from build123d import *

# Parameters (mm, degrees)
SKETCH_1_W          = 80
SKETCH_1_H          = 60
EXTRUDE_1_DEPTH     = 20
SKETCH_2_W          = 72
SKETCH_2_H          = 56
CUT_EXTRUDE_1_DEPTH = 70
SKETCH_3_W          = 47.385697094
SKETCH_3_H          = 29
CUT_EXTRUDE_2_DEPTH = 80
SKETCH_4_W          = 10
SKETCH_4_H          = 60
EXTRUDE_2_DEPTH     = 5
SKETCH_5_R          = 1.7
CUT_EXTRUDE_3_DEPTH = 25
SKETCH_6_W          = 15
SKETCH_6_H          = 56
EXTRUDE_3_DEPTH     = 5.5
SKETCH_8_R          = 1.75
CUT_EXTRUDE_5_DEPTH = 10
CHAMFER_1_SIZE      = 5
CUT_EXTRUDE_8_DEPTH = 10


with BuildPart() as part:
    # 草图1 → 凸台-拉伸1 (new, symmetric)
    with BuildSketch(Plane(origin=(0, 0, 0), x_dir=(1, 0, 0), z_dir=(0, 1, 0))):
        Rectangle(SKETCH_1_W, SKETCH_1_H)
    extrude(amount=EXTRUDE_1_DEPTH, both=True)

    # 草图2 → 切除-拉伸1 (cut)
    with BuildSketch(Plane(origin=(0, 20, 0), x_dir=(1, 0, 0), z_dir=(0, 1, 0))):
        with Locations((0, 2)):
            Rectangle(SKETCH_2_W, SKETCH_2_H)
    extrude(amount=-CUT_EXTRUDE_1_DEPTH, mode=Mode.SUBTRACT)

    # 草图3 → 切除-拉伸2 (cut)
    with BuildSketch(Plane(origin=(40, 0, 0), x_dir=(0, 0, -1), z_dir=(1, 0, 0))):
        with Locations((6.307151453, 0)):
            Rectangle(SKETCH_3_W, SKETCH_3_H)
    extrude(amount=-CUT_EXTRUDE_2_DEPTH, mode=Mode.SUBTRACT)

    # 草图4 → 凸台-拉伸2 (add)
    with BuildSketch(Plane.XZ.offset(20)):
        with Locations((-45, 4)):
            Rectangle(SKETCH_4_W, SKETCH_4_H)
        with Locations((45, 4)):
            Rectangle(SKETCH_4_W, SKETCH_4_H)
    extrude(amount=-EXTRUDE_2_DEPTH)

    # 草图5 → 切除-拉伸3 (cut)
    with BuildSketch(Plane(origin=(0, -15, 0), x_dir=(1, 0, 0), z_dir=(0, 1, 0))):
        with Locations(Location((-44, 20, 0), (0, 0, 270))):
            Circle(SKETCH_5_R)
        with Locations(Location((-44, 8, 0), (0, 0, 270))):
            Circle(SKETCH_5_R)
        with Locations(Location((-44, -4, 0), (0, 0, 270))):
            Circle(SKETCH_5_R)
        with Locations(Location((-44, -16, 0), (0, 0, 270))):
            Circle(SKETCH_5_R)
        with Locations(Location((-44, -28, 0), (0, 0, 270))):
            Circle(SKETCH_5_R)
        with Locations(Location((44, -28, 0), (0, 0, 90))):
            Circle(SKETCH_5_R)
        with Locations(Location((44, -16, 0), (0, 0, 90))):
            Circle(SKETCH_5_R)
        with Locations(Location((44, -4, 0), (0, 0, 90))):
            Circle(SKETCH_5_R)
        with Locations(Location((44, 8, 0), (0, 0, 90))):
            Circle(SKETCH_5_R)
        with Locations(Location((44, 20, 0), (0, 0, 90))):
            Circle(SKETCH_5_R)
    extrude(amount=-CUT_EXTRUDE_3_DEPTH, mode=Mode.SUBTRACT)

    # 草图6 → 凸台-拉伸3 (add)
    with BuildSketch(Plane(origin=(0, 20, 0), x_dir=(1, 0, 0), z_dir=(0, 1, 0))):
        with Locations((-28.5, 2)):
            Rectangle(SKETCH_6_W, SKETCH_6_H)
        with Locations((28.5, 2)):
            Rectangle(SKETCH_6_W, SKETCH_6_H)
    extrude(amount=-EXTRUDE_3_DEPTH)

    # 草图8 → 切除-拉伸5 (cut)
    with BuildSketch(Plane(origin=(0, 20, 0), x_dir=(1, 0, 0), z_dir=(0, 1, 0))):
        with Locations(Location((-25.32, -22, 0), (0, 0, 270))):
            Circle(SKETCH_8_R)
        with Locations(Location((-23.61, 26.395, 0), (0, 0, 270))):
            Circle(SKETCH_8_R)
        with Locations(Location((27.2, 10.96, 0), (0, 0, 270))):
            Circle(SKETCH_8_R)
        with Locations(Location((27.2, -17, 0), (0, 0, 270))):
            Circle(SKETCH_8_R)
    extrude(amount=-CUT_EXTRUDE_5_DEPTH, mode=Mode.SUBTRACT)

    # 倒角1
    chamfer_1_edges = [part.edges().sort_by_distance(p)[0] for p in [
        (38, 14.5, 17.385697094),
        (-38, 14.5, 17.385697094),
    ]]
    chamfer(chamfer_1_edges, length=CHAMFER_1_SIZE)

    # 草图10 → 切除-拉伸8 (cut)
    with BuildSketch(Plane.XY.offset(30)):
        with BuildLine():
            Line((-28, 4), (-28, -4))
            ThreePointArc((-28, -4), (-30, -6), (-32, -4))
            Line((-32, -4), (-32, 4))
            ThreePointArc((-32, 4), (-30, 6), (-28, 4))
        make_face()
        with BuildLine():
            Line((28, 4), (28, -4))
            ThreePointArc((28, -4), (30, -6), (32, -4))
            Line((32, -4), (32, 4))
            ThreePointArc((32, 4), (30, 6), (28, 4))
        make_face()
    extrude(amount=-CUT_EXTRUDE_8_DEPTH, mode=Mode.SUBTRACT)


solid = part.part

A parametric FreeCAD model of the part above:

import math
import FreeCAD as App
import Part
import Sketcher
Q = App.Units.Quantity


def edges_at(feature, points):
    """Names of the edges that pass closest to the given points."""
    edges = feature.Shape.Edges
    near = lambda p: min(range(len(edges)), key=lambda i: edges[i].distToShape(Part.Vertex(*p))[0])
    return sorted({f"Edge{near(p) + 1}" for p in points})

doc = App.newDocument("Part")
body = doc.addObject("PartDesign::Body", "Body")

sketch1 = doc.addObject("Sketcher::SketchObject", "Sketch")
body.addObject(sketch1)
sketch1.AttachmentSupport = (doc.XZ_Plane, [""])
sketch1.MapMode = "FlatFace"
sketch1.addGeometry(Part.LineSegment(App.Vector(-40, -30, 0), App.Vector(-40, 30, 0)), False)
sketch1.addGeometry(Part.LineSegment(App.Vector(-40, 30, 0), App.Vector(40, 30, 0)), False)
sketch1.addGeometry(Part.LineSegment(App.Vector(40, 30, 0), App.Vector(40, -30, 0)), False)
sketch1.addGeometry(Part.LineSegment(App.Vector(40, -30, 0), App.Vector(-40, -30, 0)), False)
sketch1.addConstraint(Sketcher.Constraint("Coincident", 0, 2, 1, 1))
sketch1.addConstraint(Sketcher.Constraint("Coincident", 1, 2, 2, 1))
sketch1.addConstraint(Sketcher.Constraint("Coincident", 2, 2, 3, 1))
sketch1.addConstraint(Sketcher.Constraint("Coincident", 3, 2, 0, 1))
sketch1.addConstraint(Sketcher.Constraint("Vertical", 0))
sketch1.addConstraint(Sketcher.Constraint("Horizontal", 1))
sketch1.addConstraint(Sketcher.Constraint("Vertical", 2))
sketch1.addConstraint(Sketcher.Constraint("Horizontal", 3))
sketch1.addConstraint(Sketcher.Constraint("Symmetric", 0, 2, 2, 2, -1, 1))
sketch1.addConstraint(Sketcher.Constraint("DistanceX", 1, 1, 1, 2, Q("80 mm")))
sketch1.addConstraint(Sketcher.Constraint("DistanceY", 0, 1, 0, 2, Q("60 mm")))
pad1 = doc.addObject("PartDesign::Pad", "Pad")
body.addObject(pad1)
pad1.Profile = sketch1
pad1.Length = 40
pad1.Midplane = True

sketch2 = doc.addObject("Sketcher::SketchObject", "Sketch001")
body.addObject(sketch2)
sketch2.AttachmentSupport = (doc.XZ_Plane, [""])
sketch2.MapMode = "FlatFace"
sketch2.AttachmentOffset = App.Placement(App.Vector(0, 0, -20), App.Rotation())
sketch2.addGeometry(Part.LineSegment(App.Vector(-36, -30, 0), App.Vector(-36, 26, 0)), False)
sketch2.addGeometry(Part.LineSegment(App.Vector(-36, 26, 0), App.Vector(36, 26, 0)), False)
sketch2.addGeometry(Part.LineSegment(App.Vector(36, 26, 0), App.Vector(36, -30, 0)), False)
sketch2.addGeometry(Part.LineSegment(App.Vector(36, -30, 0), App.Vector(-36, -30, 0)), False)
sketch2.addConstraint(Sketcher.Constraint("Coincident", 0, 2, 1, 1))
sketch2.addConstraint(Sketcher.Constraint("Coincident", 1, 2, 2, 1))
sketch2.addConstraint(Sketcher.Constraint("Coincident", 2, 2, 3, 1))
sketch2.addConstraint(Sketcher.Constraint("Coincident", 3, 2, 0, 1))
sketch2.addConstraint(Sketcher.Constraint("Vertical", 0))
sketch2.addConstraint(Sketcher.Constraint("Horizontal", 1))
sketch2.addConstraint(Sketcher.Constraint("Vertical", 2))
sketch2.addConstraint(Sketcher.Constraint("Horizontal", 3))
sketch2.addConstraint(Sketcher.Constraint("DistanceX", 1, 1, 1, 2, Q("72 mm")))
sketch2.addConstraint(Sketcher.Constraint("DistanceY", 0, 1, 0, 2, Q("56 mm")))
sketch2.addConstraint(Sketcher.Constraint("DistanceX", 0, 2, -1, 1, Q("36 mm")))
sketch2.addConstraint(Sketcher.Constraint("DistanceY", -1, 1, 0, 2, Q("26 mm")))
pocket1 = doc.addObject("PartDesign::Pocket", "Pocket")
body.addObject(pocket1)
pocket1.Profile = sketch2
pocket1.Length = 70
pocket1.Reversed = True

sketch3 = doc.addObject("Sketcher::SketchObject", "Sketch002")
body.addObject(sketch3)
sketch3.AttachmentSupport = (doc.YZ_Plane, [""])
sketch3.MapMode = "FlatFace"
sketch3.AttachmentOffset = App.Placement(App.Vector(0, 0, 40), App.Rotation())
sketch3.addGeometry(Part.LineSegment(App.Vector(14, 17, 0), App.Vector(-14, 17, 0)), False)
sketch3.addGeometry(Part.LineSegment(App.Vector(-14, 17, 0), App.Vector(-14, -30, 0)), False)
sketch3.addGeometry(Part.LineSegment(App.Vector(-14, -30, 0), App.Vector(14, -30, 0)), False)
sketch3.addGeometry(Part.LineSegment(App.Vector(14, -30, 0), App.Vector(14, 17, 0)), False)
sketch3.addConstraint(Sketcher.Constraint("Coincident", 0, 2, 1, 1))
sketch3.addConstraint(Sketcher.Constraint("Coincident", 1, 2, 2, 1))
sketch3.addConstraint(Sketcher.Constraint("Coincident", 2, 2, 3, 1))
sketch3.addConstraint(Sketcher.Constraint("Coincident", 3, 2, 0, 1))
sketch3.addConstraint(Sketcher.Constraint("Horizontal", 0))
sketch3.addConstraint(Sketcher.Constraint("Vertical", 1))
sketch3.addConstraint(Sketcher.Constraint("Horizontal", 2))
sketch3.addConstraint(Sketcher.Constraint("Vertical", 3))
sketch3.addConstraint(Sketcher.Constraint("DistanceX", 0, 2, 0, 1, Q("29 mm")))
sketch3.addConstraint(Sketcher.Constraint("DistanceY", 1, 2, -1, 1, Q("30 mm")))
sketch3.addConstraint(Sketcher.Constraint("DistanceX", 0, 2, -1, 1, Q("14.5 mm")))
sketch3.addConstraint(Sketcher.Constraint("DistanceY", 1, 2, 1, 1, Q("47.385697 mm")))
pocket2 = doc.addObject("PartDesign::Pocket", "Pocket001")
body.addObject(pocket2)
pocket2.Profile = sketch3
pocket2.Length = 80

sketch4 = doc.addObject("Sketcher::SketchObject", "Sketch003")
body.addObject(sketch4)
sketch4.AttachmentSupport = (doc.XZ_Plane, [""])
sketch4.MapMode = "FlatFace"
sketch4.AttachmentOffset = App.Placement(App.Vector(0, 0, 20), App.Rotation())
sketch4.addGeometry(Part.LineSegment(App.Vector(-50, 34, 0), App.Vector(-50, -26, 0)), False)
sketch4.addGeometry(Part.LineSegment(App.Vector(-50, -26, 0), App.Vector(-40, -26, 0)), False)
sketch4.addGeometry(Part.LineSegment(App.Vector(-40, -26, 0), App.Vector(-40, 34, 0)), False)
sketch4.addGeometry(Part.LineSegment(App.Vector(-40, 34, 0), App.Vector(-50, 34, 0)), False)
sketch4.addGeometry(Part.LineSegment(App.Vector(40, 34, 0), App.Vector(40, -26, 0)), False)
sketch4.addGeometry(Part.LineSegment(App.Vector(40, -26, 0), App.Vector(50, -26, 0)), False)
sketch4.addGeometry(Part.LineSegment(App.Vector(50, -26, 0), App.Vector(50, 34, 0)), False)
sketch4.addGeometry(Part.LineSegment(App.Vector(50, 34, 0), App.Vector(40, 34, 0)), False)
sketch4.addConstraint(Sketcher.Constraint("Coincident", 0, 2, 1, 1))
sketch4.addConstraint(Sketcher.Constraint("Coincident", 1, 2, 2, 1))
sketch4.addConstraint(Sketcher.Constraint("Coincident", 2, 2, 3, 1))
sketch4.addConstraint(Sketcher.Constraint("Coincident", 3, 2, 0, 1))
sketch4.addConstraint(Sketcher.Constraint("Coincident", 4, 2, 5, 1))
sketch4.addConstraint(Sketcher.Constraint("Coincident", 5, 2, 6, 1))
sketch4.addConstraint(Sketcher.Constraint("Coincident", 6, 2, 7, 1))
sketch4.addConstraint(Sketcher.Constraint("Coincident", 7, 2, 4, 1))
sketch4.addConstraint(Sketcher.Constraint("Vertical", 0))
sketch4.addConstraint(Sketcher.Constraint("Horizontal", 1))
sketch4.addConstraint(Sketcher.Constraint("Vertical", 2))
sketch4.addConstraint(Sketcher.Constraint("Horizontal", 3))
sketch4.addConstraint(Sketcher.Constraint("Vertical", 4))
sketch4.addConstraint(Sketcher.Constraint("Horizontal", 5))
sketch4.addConstraint(Sketcher.Constraint("Vertical", 6))
sketch4.addConstraint(Sketcher.Constraint("Horizontal", 7))
sketch4.addConstraint(Sketcher.Constraint("Symmetric", 1, 2, 4, 2, -2))
sketch4.addConstraint(Sketcher.Constraint("Symmetric", 3, 2, 6, 2, -2))
sketch4.addConstraint(Sketcher.Constraint("DistanceX", 1, 1, 1, 2, Q("10 mm")))
sketch4.addConstraint(Sketcher.Constraint("DistanceY", 0, 2, 0, 1, Q("60 mm")))
sketch4.addConstraint(Sketcher.Constraint("DistanceX", 0, 2, -1, 1, Q("50 mm")))
sketch4.addConstraint(Sketcher.Constraint("DistanceY", 0, 2, -1, 1, Q("26 mm")))
pad2 = doc.addObject("PartDesign::Pad", "Pad001")
body.addObject(pad2)
pad2.Profile = sketch4
pad2.Length = 5
pad2.Reversed = True

sketch5 = doc.addObject("Sketcher::SketchObject", "Sketch004")
body.addObject(sketch5)
sketch5.AttachmentSupport = (doc.XZ_Plane, [""])
sketch5.MapMode = "FlatFace"
sketch5.AttachmentOffset = App.Placement(App.Vector(0, 0, 15), App.Rotation())
sketch5.addGeometry(Part.Circle(App.Vector(-44, -20, 0), App.Vector(0, 0, 1), 1.7), False)
sketch5.addGeometry(Part.Circle(App.Vector(-44, -8, 0), App.Vector(0, 0, 1), 1.7), False)
sketch5.addGeometry(Part.Circle(App.Vector(-44, 4, 0), App.Vector(0, 0, 1), 1.7), False)
sketch5.addGeometry(Part.Circle(App.Vector(-44, 16, 0), App.Vector(0, 0, 1), 1.7), False)
sketch5.addGeometry(Part.Circle(App.Vector(-44, 28, 0), App.Vector(0, 0, 1), 1.7), False)
sketch5.addGeometry(Part.Circle(App.Vector(44, 28, 0), App.Vector(0, 0, 1), 1.7), False)
sketch5.addGeometry(Part.Circle(App.Vector(44, 16, 0), App.Vector(0, 0, 1), 1.7), False)
sketch5.addGeometry(Part.Circle(App.Vector(44, 4, 0), App.Vector(0, 0, 1), 1.7), False)
sketch5.addGeometry(Part.Circle(App.Vector(44, -8, 0), App.Vector(0, 0, 1), 1.7), False)
sketch5.addGeometry(Part.Circle(App.Vector(44, -20, 0), App.Vector(0, 0, 1), 1.7), False)
sketch5.addConstraint(Sketcher.Constraint("Equal", 0, 1))
sketch5.addConstraint(Sketcher.Constraint("Equal", 1, 2))
sketch5.addConstraint(Sketcher.Constraint("Equal", 2, 3))
sketch5.addConstraint(Sketcher.Constraint("Equal", 3, 4))
sketch5.addConstraint(Sketcher.Constraint("Equal", 4, 5))
sketch5.addConstraint(Sketcher.Constraint("Equal", 5, 6))
sketch5.addConstraint(Sketcher.Constraint("Equal", 6, 7))
sketch5.addConstraint(Sketcher.Constraint("Equal", 7, 8))
sketch5.addConstraint(Sketcher.Constraint("Equal", 8, 9))
sketch5.addConstraint(Sketcher.Constraint("Symmetric", 4, 3, 5, 3, -2))
sketch5.addConstraint(Sketcher.Constraint("Symmetric", 3, 3, 6, 3, -2))
sketch5.addConstraint(Sketcher.Constraint("Symmetric", 2, 3, 7, 3, -2))
sketch5.addConstraint(Sketcher.Constraint("Symmetric", 1, 3, 8, 3, -2))
sketch5.addConstraint(Sketcher.Constraint("Symmetric", 0, 3, 9, 3, -2))
sketch5.addConstraint(Sketcher.Constraint("Vertical", 0, 3, 1, 3))
sketch5.addConstraint(Sketcher.Constraint("Vertical", 1, 3, 2, 3))
sketch5.addConstraint(Sketcher.Constraint("Vertical", 2, 3, 3, 3))
sketch5.addConstraint(Sketcher.Constraint("Vertical", 3, 3, 4, 3))
sketch5.addConstraint(Sketcher.Constraint("Diameter", 0, Q("3.4 mm")))
sketch5.addConstraint(Sketcher.Constraint("DistanceX", 0, 3, -1, 1, Q("44 mm")))
sketch5.addConstraint(Sketcher.Constraint("DistanceY", 0, 3, -1, 1, Q("20 mm")))
sketch5.addConstraint(Sketcher.Constraint("DistanceY", 1, 3, -1, 1, Q("8 mm")))
sketch5.addConstraint(Sketcher.Constraint("DistanceY", -1, 1, 2, 3, Q("4 mm")))
sketch5.addConstraint(Sketcher.Constraint("DistanceY", -1, 1, 3, 3, Q("16 mm")))
sketch5.addConstraint(Sketcher.Constraint("DistanceY", -1, 1, 4, 3, Q("28 mm")))
pocket3 = doc.addObject("PartDesign::Pocket", "Pocket002")
body.addObject(pocket3)
pocket3.Profile = sketch5
pocket3.Length = 25
pocket3.Reversed = True

sketch6 = doc.addObject("Sketcher::SketchObject", "Sketch005")
body.addObject(sketch6)
sketch6.AttachmentSupport = (doc.XZ_Plane, [""])
sketch6.MapMode = "FlatFace"
sketch6.AttachmentOffset = App.Placement(App.Vector(0, 0, -20), App.Rotation())
sketch6.addGeometry(Part.LineSegment(App.Vector(-36, -30, 0), App.Vector(-36, 26, 0)), False)
sketch6.addGeometry(Part.LineSegment(App.Vector(-36, 26, 0), App.Vector(-21, 26, 0)), False)
sketch6.addGeometry(Part.LineSegment(App.Vector(-21, 26, 0), App.Vector(-21, -30, 0)), False)
sketch6.addGeometry(Part.LineSegment(App.Vector(-21, -30, 0), App.Vector(-36, -30, 0)), False)
sketch6.addGeometry(Part.LineSegment(App.Vector(21, -30, 0), App.Vector(21, 26, 0)), False)
sketch6.addGeometry(Part.LineSegment(App.Vector(21, 26, 0), App.Vector(36, 26, 0)), False)
sketch6.addGeometry(Part.LineSegment(App.Vector(36, 26, 0), App.Vector(36, -30, 0)), False)
sketch6.addGeometry(Part.LineSegment(App.Vector(36, -30, 0), App.Vector(21, -30, 0)), False)
sketch6.addConstraint(Sketcher.Constraint("Coincident", 0, 2, 1, 1))
sketch6.addConstraint(Sketcher.Constraint("Coincident", 1, 2, 2, 1))
sketch6.addConstraint(Sketcher.Constraint("Coincident", 2, 2, 3, 1))
sketch6.addConstraint(Sketcher.Constraint("Coincident", 3, 2, 0, 1))
sketch6.addConstraint(Sketcher.Constraint("Coincident", 4, 2, 5, 1))
sketch6.addConstraint(Sketcher.Constraint("Coincident", 5, 2, 6, 1))
sketch6.addConstraint(Sketcher.Constraint("Coincident", 6, 2, 7, 1))
sketch6.addConstraint(Sketcher.Constraint("Coincident", 7, 2, 4, 1))
sketch6.addConstraint(Sketcher.Constraint("Vertical", 0))
sketch6.addConstraint(Sketcher.Constraint("Horizontal", 1))
sketch6.addConstraint(Sketcher.Constraint("Vertical", 2))
sketch6.addConstraint(Sketcher.Constraint("Horizontal", 3))
sketch6.addConstraint(Sketcher.Constraint("Vertical", 4))
sketch6.addConstraint(Sketcher.Constraint("Horizontal", 5))
sketch6.addConstraint(Sketcher.Constraint("Vertical", 6))
sketch6.addConstraint(Sketcher.Constraint("Horizontal", 7))
sketch6.addConstraint(Sketcher.Constraint("Symmetric", 1, 2, 4, 2, -2))
sketch6.addConstraint(Sketcher.Constraint("Symmetric", 3, 2, 6, 2, -2))
sketch6.addConstraint(Sketcher.Constraint("DistanceX", 1, 1, 1, 2, Q("15 mm")))
sketch6.addConstraint(Sketcher.Constraint("DistanceY", 0, 1, 0, 2, Q("56 mm")))
sketch6.addConstraint(Sketcher.Constraint("DistanceX", 0, 2, -1, 1, Q("36 mm")))
sketch6.addConstraint(Sketcher.Constraint("DistanceY", -1, 1, 0, 2, Q("26 mm")))
pad3 = doc.addObject("PartDesign::Pad", "Pad002")
body.addObject(pad3)
pad3.Profile = sketch6
pad3.Length = 5.5

sketch7 = doc.addObject("Sketcher::SketchObject", "Sketch006")
body.addObject(sketch7)
sketch7.AttachmentSupport = (doc.XZ_Plane, [""])
sketch7.MapMode = "FlatFace"
sketch7.AttachmentOffset = App.Placement(App.Vector(0, 0, -20), App.Rotation())
sketch7.addGeometry(Part.Circle(App.Vector(-25.3, 22, 0), App.Vector(0, 0, 1), 1.8), False)
sketch7.addGeometry(Part.Circle(App.Vector(-23.6, -26.4, 0), App.Vector(0, 0, 1), 1.8), False)
sketch7.addGeometry(Part.Circle(App.Vector(27.2, -11, 0), App.Vector(0, 0, 1), 1.8), False)
sketch7.addGeometry(Part.Circle(App.Vector(27.2, 17, 0), App.Vector(0, 0, 1), 1.8), False)
sketch7.addConstraint(Sketcher.Constraint("Equal", 0, 1))
sketch7.addConstraint(Sketcher.Constraint("Equal", 1, 2))
sketch7.addConstraint(Sketcher.Constraint("Equal", 2, 3))
sketch7.addConstraint(Sketcher.Constraint("Vertical", 2, 3, 3, 3))
sketch7.addConstraint(Sketcher.Constraint("Diameter", 0, Q("3.5 mm")))
sketch7.addConstraint(Sketcher.Constraint("DistanceY", -1, 1, 0, 3, Q("22 mm")))
sketch7.addConstraint(Sketcher.Constraint("DistanceY", -1, 1, 3, 3, Q("17 mm")))
sketch7.addConstraint(Sketcher.Constraint("DistanceX", -1, 1, 2, 3, Q("27.2 mm")))
sketch7.addConstraint(Sketcher.Constraint("DistanceX", 0, 3, -1, 1, Q("25.32 mm")))
sketch7.addConstraint(Sketcher.Constraint("DistanceX", 1, 3, -1, 1, Q("23.61 mm")))
sketch7.addConstraint(Sketcher.Constraint("DistanceY", 2, 3, -1, 1, Q("10.96 mm")))
sketch7.addConstraint(Sketcher.Constraint("DistanceY", 1, 3, -1, 1, Q("26.395 mm")))
pocket4 = doc.addObject("PartDesign::Pocket", "Pocket003")
body.addObject(pocket4)
pocket4.Profile = sketch7
pocket4.Length = 10
pocket4.Reversed = True
doc.recompute()

chamfer = doc.addObject("PartDesign::Chamfer", "Chamfer")
body.addObject(chamfer)
chamfer.Base = (pocket4, edges_at(pocket4, [(38, 14.5, 17.386), (-38, 14.5, 17.386)]))
chamfer.Size = 5

sketch8 = doc.addObject("Sketcher::SketchObject", "Sketch007")
body.addObject(sketch8)
sketch8.AttachmentSupport = (doc.XY_Plane, [""])
sketch8.MapMode = "FlatFace"
sketch8.AttachmentOffset = App.Placement(App.Vector(0, 0, 30), App.Rotation())
sketch8.addGeometry(Part.LineSegment(App.Vector(-28, -4, 0), App.Vector(-28, 4, 0)), False)
sketch8.addGeometry(Part.ArcOfCircle(Part.Circle(App.Vector(-30, 4, 0), App.Vector(0, 0, 1), 2), math.radians(0), math.radians(180)), False)
sketch8.addGeometry(Part.LineSegment(App.Vector(-32, 4, 0), App.Vector(-32, -4, 0)), False)
sketch8.addGeometry(Part.ArcOfCircle(Part.Circle(App.Vector(-30, -4, 0), App.Vector(0, 0, 1), 2), math.radians(180), math.radians(360)), False)
sketch8.addGeometry(Part.LineSegment(App.Vector(28, 4, 0), App.Vector(28, -4, 0)), False)
sketch8.addGeometry(Part.ArcOfCircle(Part.Circle(App.Vector(30, -4, 0), App.Vector(0, 0, 1), 2), math.radians(180), math.radians(360)), False)
sketch8.addGeometry(Part.LineSegment(App.Vector(32, -4, 0), App.Vector(32, 4, 0)), False)
sketch8.addGeometry(Part.ArcOfCircle(Part.Circle(App.Vector(30, 4, 0), App.Vector(0, 0, 1), 2), math.radians(0), math.radians(180)), False)
sketch8.addConstraint(Sketcher.Constraint("Tangent", 0, 2, 1, 1))
sketch8.addConstraint(Sketcher.Constraint("Tangent", 1, 2, 2, 1))
sketch8.addConstraint(Sketcher.Constraint("Tangent", 2, 2, 3, 1))
sketch8.addConstraint(Sketcher.Constraint("Tangent", 3, 2, 0, 1))
sketch8.addConstraint(Sketcher.Constraint("Tangent", 4, 2, 5, 1))
sketch8.addConstraint(Sketcher.Constraint("Tangent", 5, 2, 6, 1))
sketch8.addConstraint(Sketcher.Constraint("Tangent", 6, 2, 7, 1))
sketch8.addConstraint(Sketcher.Constraint("Tangent", 7, 2, 4, 1))
sketch8.addConstraint(Sketcher.Constraint("Vertical", 0))
sketch8.addConstraint(Sketcher.Constraint("Vertical", 2))
sketch8.addConstraint(Sketcher.Constraint("Vertical", 4))
sketch8.addConstraint(Sketcher.Constraint("Vertical", 6))
sketch8.addConstraint(Sketcher.Constraint("Equal", 3, 5))
sketch8.addConstraint(Sketcher.Constraint("Symmetric", 1, 3, 5, 3, -1, 1))
sketch8.addConstraint(Sketcher.Constraint("Horizontal", 3, 3, 5, 3))
sketch8.addConstraint(Sketcher.Constraint("Horizontal", 1, 3, 7, 3))
sketch8.addConstraint(Sketcher.Constraint("Radius", 1, Q("2 mm")))
sketch8.addConstraint(Sketcher.Constraint("DistanceY", 0, 1, 0, 2, Q("8 mm")))
sketch8.addConstraint(Sketcher.Constraint("DistanceX", 1, 3, -1, 1, Q("30 mm")))
pocket5 = doc.addObject("PartDesign::Pocket", "Pocket004")
body.addObject(pocket5)
pocket5.Profile = sketch8
pocket5.Length = 10

doc.recompute()
